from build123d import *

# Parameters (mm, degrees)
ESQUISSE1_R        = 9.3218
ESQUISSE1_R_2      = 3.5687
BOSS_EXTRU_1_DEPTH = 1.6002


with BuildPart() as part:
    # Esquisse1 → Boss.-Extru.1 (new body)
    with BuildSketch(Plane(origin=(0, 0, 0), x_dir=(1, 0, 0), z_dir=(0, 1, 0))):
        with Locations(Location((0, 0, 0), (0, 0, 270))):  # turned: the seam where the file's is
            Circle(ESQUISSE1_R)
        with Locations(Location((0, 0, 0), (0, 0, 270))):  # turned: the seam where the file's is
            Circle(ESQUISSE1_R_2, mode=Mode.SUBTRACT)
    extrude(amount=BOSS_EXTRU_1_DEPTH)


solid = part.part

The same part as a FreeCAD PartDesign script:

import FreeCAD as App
import Part
import Sketcher
from FreeCAD import Vector
Q = App.Units.Quantity

doc = App.newDocument("Part")
body = doc.addObject("PartDesign::Body", "Body")

sketch1 = body.newObject("Sketcher::SketchObject", "Sketch")
sketch1.AttachmentSupport = (doc.getObject("XZ_Plane"), [""])
sketch1.MapMode = "FlatFace"
sketch1.addGeometry([
    Part.Circle(Vector(0, 0, 0), Vector(0, 0, 1), 9.3),
    Part.Circle(Vector(0, 0, 0), Vector(0, 0, 1), 3.6),
], False)
sketch1.addConstraint([
    Sketcher.Constraint("Coincident", 0, 3, -1, 1),
    Sketcher.Constraint("Coincident", 1, 3, -1, 1),
    Sketcher.Constraint("Diameter", 0, Q("0.734 in")),
    Sketcher.Constraint("Diameter", 1, Q("0.281 in")),
])
pad1 = body.newObject("PartDesign::Pad", "Pad")
pad1.Profile = sketch1
pad1.Length = Q("0.063 in")
pad1.Reversed = True

doc.recompute()
